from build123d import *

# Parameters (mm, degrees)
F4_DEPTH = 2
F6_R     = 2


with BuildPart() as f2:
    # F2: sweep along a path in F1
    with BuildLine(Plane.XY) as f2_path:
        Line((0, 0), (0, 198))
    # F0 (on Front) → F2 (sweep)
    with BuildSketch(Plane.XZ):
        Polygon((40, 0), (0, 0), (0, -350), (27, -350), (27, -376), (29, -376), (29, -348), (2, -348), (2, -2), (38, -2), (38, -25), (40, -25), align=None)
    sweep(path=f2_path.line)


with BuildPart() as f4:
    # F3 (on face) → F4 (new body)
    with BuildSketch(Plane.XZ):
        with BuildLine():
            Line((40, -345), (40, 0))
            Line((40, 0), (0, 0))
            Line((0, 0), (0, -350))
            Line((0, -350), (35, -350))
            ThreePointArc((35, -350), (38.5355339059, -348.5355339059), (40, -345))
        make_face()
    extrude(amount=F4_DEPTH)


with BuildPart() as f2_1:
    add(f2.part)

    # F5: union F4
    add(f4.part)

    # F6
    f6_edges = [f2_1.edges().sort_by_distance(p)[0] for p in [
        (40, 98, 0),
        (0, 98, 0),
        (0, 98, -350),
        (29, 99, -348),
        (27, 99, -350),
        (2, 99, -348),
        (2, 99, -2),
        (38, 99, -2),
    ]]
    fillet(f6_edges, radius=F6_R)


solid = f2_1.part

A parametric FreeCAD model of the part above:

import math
import FreeCAD as App
import Part
import Sketcher
from FreeCAD import Vector
Q = App.Units.Quantity


def edges_at(feature, points):
    """Names of the edges that pass closest to the given points."""
    edges = feature.Shape.Edges
    near = lambda p: min(range(len(edges)), key=lambda i: edges[i].distToShape(Part.Vertex(*p))[0])
    return sorted({f"Edge{near(p) + 1}" for p in points})

doc = App.newDocument("Part")
params = doc.addObject("Spreadsheet::Sheet", "Params")
for row, (alias, value) in enumerate([
    ("sketch1_width", "40 mm"),
    ("sketch1_width2", "27 mm"),
    ("sketch1_width3", "2 mm"),
    ("sketch1_height", "350 mm"),
    ("sketch1_height2", "26 mm"),
    ("sketch2_height", "198 mm"),
    ("sketch3_radius", "5 mm"),
    ("sketch3_width", "40 mm"),
    ("sketch3_height", "345 mm"),
    ("pad1_length", "2 mm"),
    ("fillet_radius", "2 mm"),
], start=1):
    params.set(f"A{row}", alias)
    params.set(f"B{row}", "=" + value)
    params.setAlias(f"B{row}", alias)

body = doc.addObject("PartDesign::Body", "Body")

# Sketch on XZ plane
sketch1 = doc.addObject("Sketcher::SketchObject", "Sketch")
body.addObject(sketch1)
sketch1.AttachmentSupport = (doc.XZ_Plane, [""])
sketch1.MapMode = "FlatFace"
sketch1.addGeometry(Part.LineSegment(Vector(40, 0, 0), Vector(0, 0, 0)), False)
sketch1.addGeometry(Part.LineSegment(Vector(0, 0, 0), Vector(0, -350, 0)), False)
sketch1.addGeometry(Part.LineSegment(Vector(0, -350, 0), Vector(27, -350, 0)), False)
sketch1.addGeometry(Part.LineSegment(Vector(27, -350, 0), Vector(27, -376, 0)), False)
sketch1.addGeometry(Part.LineSegment(Vector(27, -376, 0), Vector(29, -376, 0)), False)
sketch1.addGeometry(Part.LineSegment(Vector(29, -376, 0), Vector(29, -348, 0)), False)
sketch1.addGeometry(Part.LineSegment(Vector(29, -348, 0), Vector(2, -348, 0)), False)
sketch1.addGeometry(Part.LineSegment(Vector(2, -348, 0), Vector(2, -2, 0)), False)
sketch1.addGeometry(Part.LineSegment(Vector(2, -2, 0), Vector(38, -2, 0)), False)
sketch1.addGeometry(Part.LineSegment(Vector(38, -2, 0), Vector(38, -25, 0)), False)
sketch1.addGeometry(Part.LineSegment(Vector(38, -25, 0), Vector(40, -25, 0)), False)
sketch1.addGeometry(Part.LineSegment(Vector(40, -25, 0), Vector(40, 0, 0)), False)
sketch1.addConstraint(Sketcher.Constraint("Coincident", 0, 2, 1, 1))
sketch1.addConstraint(Sketcher.Constraint("Coincident", 1, 2, 2, 1))
sketch1.addConstraint(Sketcher.Constraint("Coincident", 2, 2, 3, 1))
sketch1.addConstraint(Sketcher.Constraint("Coincident", 3, 2, 4, 1))
sketch1.addConstraint(Sketcher.Constraint("Coincident", 4, 2, 5, 1))
sketch1.addConstraint(Sketcher.Constraint("Coincident", 5, 2, 6, 1))
sketch1.addConstraint(Sketcher.Constraint("Coincident", 6, 2, 7, 1))
sketch1.addConstraint(Sketcher.Constraint("Coincident", 7, 2, 8, 1))
sketch1.addConstraint(Sketcher.Constraint("Coincident", 8, 2, 9, 1))
sketch1.addConstraint(Sketcher.Constraint("Coincident", 9, 2, 10, 1))
sketch1.addConstraint(Sketcher.Constraint("Coincident", 10, 2, 11, 1))
sketch1.addConstraint(Sketcher.Constraint("Coincident", 11, 2, 0, 1))
sketch1.addConstraint(Sketcher.Constraint("Horizontal", 0))
sketch1.addConstraint(Sketcher.Constraint("Vertical", 1))
sketch1.addConstraint(Sketcher.Constraint("Horizontal", 2))
sketch1.addConstraint(Sketcher.Constraint("Vertical", 3))
sketch1.addConstraint(Sketcher.Constraint("Horizontal", 4))
sketch1.addConstraint(Sketcher.Constraint("Vertical", 5))
sketch1.addConstraint(Sketcher.Constraint("Horizontal", 6))
sketch1.addConstraint(Sketcher.Constraint("Vertical", 7))
sketch1.addConstraint(Sketcher.Constraint("Horizontal", 8))
sketch1.addConstraint(Sketcher.Constraint("Vertical", 9))
sketch1.addConstraint(Sketcher.Constraint("Horizontal", 10))
sketch1.addConstraint(Sketcher.Constraint("Vertical", 11))
sketch1.addConstraint(Sketcher.Constraint("Coincident", 0, 2, -1, 1))
sketch1.addConstraint(Sketcher.Constraint("Equal", 2, 6))
sketch1.addConstraint(Sketcher.Constraint("Equal", 4, 10))
sketch1.addConstraint(Sketcher.Constraint("DistanceX", 0, 2, 0, 1, Q("40 mm")))
sketch1.addConstraint(Sketcher.Constraint("DistanceX", 2, 1, 2, 2, Q("27 mm")))
sketch1.addConstraint(Sketcher.Constraint("DistanceX", 4, 1, 4, 2, Q("2 mm")))
sketch1.addConstraint(Sketcher.Constraint("DistanceY", 1, 2, 1, 1, Q("350 mm")))
sketch1.addConstraint(Sketcher.Constraint("DistanceY", 3, 2, 3, 1, Q("26 mm")))
sketch1.addConstraint(Sketcher.Constraint("DistanceY", 5, 1, 5, 2, Q("28 mm")))
sketch1.addConstraint(Sketcher.Constraint("DistanceY", 7, 1, 7, 2, Q("346 mm")))
sketch1.addConstraint(Sketcher.Constraint("DistanceY", 9, 2, 9, 1, Q("23 mm")))
sketch1.setExpression("Constraints[27]", "Params.sketch1_width")
sketch1.setExpression("Constraints[28]", "Params.sketch1_width2")
sketch1.setExpression("Constraints[29]", "Params.sketch1_width3")
sketch1.setExpression("Constraints[30]", "Params.sketch1_height")
sketch1.setExpression("Constraints[31]", "Params.sketch1_height2")

# Sketch on XY plane
sketch2 = doc.addObject("Sketcher::SketchObject", "Sketch001")
body.addObject(sketch2)
sketch2.AttachmentSupport = (doc.XY_Plane, [""])
sketch2.MapMode = "FlatFace"
sketch2.addGeometry(Part.LineSegment(Vector(0, 0, 0), Vector(0, 198, 0)), False)
sketch2.addConstraint(Sketcher.Constraint("Vertical", 0))
sketch2.addConstraint(Sketcher.Constraint("Coincident", 0, 1, -1, 1))
sketch2.addConstraint(Sketcher.Constraint("DistanceY", 0, 1, 0, 2, Q("198 mm")))
sketch2.setExpression("Constraints[2]", "Params.sketch2_height")
doc.recompute()

additivepipe = doc.addObject("PartDesign::AdditivePipe", "AdditivePipe")
body.addObject(additivepipe)
additivepipe.Profile = sketch1
additivepipe.Spine = (sketch2, ["Edge1"])
body2 = doc.addObject("PartDesign::Body", "Body001")

# Sketch on XZ plane
sketch3 = doc.addObject("Sketcher::SketchObject", "Sketch002")
body2.addObject(sketch3)
sketch3.AttachmentSupport = (doc.getObject("XZ_Plane001"), [""])
sketch3.MapMode = "FlatFace"
sketch3.addGeometry(Part.LineSegment(Vector(40, -345, 0), Vector(40, 0, 0)), False)
sketch3.addGeometry(Part.LineSegment(Vector(40, 0, 0), Vector(0, 0, 0)), False)
sketch3.addGeometry(Part.LineSegment(Vector(0, 0, 0), Vector(0, -350, 0)), False)
sketch3.addGeometry(Part.LineSegment(Vector(0, -350, 0), Vector(35, -350, 0)), False)
sketch3.addGeometry(Part.ArcOfCircle(Part.Circle(Vector(35, -345, 0), Vector(0, 0, 1), 5), math.radians(-90), math.radians(0)), False)
sketch3.addConstraint(Sketcher.Constraint("Coincident", 0, 2, 1, 1))
sketch3.addConstraint(Sketcher.Constraint("Coincident", 1, 2, 2, 1))
sketch3.addConstraint(Sketcher.Constraint("Coincident", 2, 2, 3, 1))
sketch3.addConstraint(Sketcher.Constraint("Tangent", 3, 2, 4, 1))
sketch3.addConstraint(Sketcher.Constraint("Tangent", 4, 2, 0, 1))
sketch3.addConstraint(Sketcher.Constraint("Vertical", 0))
sketch3.addConstraint(Sketcher.Constraint("Horizontal", 1))
sketch3.addConstraint(Sketcher.Constraint("Vertical", 2))
sketch3.addConstraint(Sketcher.Constraint("Horizontal", 3))
sketch3.addConstraint(Sketcher.Constraint("Coincident", 1, 2, -1, 1))
sketch3.addConstraint(Sketcher.Constraint("Radius", 4, Q("5 mm")))
sketch3.addConstraint(Sketcher.Constraint("DistanceX", 1, 2, 1, 1, Q("40 mm")))
sketch3.addConstraint(Sketcher.Constraint("DistanceY", 0, 1, 0, 2, Q("345 mm")))
sketch3.setExpression("Constraints[10]", "Params.sketch3_radius")
sketch3.setExpression("Constraints[11]", "Params.sketch3_width")
sketch3.setExpression("Constraints[12]", "Params.sketch3_height")
pad1 = doc.addObject("PartDesign::Pad", "Pad")
body2.addObject(pad1)
pad1.Profile = sketch3
pad1.setExpression("Length", "Params.pad1_length")
doc.recompute()

boolean = doc.addObject("PartDesign::Boolean", "Boolean")
body.addObject(boolean)
boolean.Type = "Fuse"
boolean.addObjects([body2])
doc.recompute()

fillet = doc.addObject("PartDesign::Fillet", "Fillet")
body.addObject(fillet)
fillet.Base = (boolean, edges_at(boolean, [
    (40, 98, 0),
    (0, 98, 0),
    (0, 98, -350),
    (29, 99, -348),
    (27, 99, -350),
    (2, 99, -348),
    (2, 99, -2),
    (38, 99, -2),
]))
fillet.setExpression("Radius", "Params.fillet_radius")

doc.recompute()
